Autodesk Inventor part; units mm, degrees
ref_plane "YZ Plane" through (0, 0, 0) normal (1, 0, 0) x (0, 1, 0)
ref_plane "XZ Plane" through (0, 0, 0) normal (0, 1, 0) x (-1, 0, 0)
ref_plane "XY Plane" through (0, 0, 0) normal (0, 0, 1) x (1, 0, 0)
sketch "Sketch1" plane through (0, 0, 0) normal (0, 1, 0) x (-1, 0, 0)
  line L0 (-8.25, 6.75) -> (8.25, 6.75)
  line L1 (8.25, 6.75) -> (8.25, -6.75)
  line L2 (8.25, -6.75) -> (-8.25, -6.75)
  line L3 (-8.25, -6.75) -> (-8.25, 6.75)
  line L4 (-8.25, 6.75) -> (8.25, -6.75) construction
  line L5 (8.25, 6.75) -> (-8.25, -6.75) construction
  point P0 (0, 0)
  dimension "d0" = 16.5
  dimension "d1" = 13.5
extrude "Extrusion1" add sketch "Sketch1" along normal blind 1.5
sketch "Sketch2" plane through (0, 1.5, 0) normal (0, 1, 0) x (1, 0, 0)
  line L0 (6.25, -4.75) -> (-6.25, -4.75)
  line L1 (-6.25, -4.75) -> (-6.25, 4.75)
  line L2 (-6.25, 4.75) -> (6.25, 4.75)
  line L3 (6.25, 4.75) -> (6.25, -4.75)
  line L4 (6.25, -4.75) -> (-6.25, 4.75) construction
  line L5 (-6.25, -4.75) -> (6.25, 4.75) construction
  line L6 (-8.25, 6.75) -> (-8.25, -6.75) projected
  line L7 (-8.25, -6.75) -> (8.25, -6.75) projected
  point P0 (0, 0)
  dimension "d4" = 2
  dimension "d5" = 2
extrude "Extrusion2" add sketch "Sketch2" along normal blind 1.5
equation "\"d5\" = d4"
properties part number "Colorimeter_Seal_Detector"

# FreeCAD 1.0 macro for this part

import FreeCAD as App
import Part
import Sketcher

V = App.Vector
Q = App.Units.Quantity


def add_polygon(sketch, points):
    """Adds a closed chain of lines whose ends are joined by coincident constraints."""
    first, n = sketch.GeometryCount, len(points)
    for a, b in zip(points, points[1:] + points[:1]):
        sketch.addGeometry(Part.LineSegment(App.Vector(*a, 0), App.Vector(*b, 0)), False)
    for i in range(n):
        sketch.addConstraint(Sketcher.Constraint("Coincident", first + i, 2, first + (i + 1) % n, 1))

doc = App.newDocument("Part")
body = doc.addObject("PartDesign::Body", "Body")

sketch1 = body.newObject("Sketcher::SketchObject", "Sketch")
sketch1.AttachmentSupport = (doc.getObject("XZ_Plane"), [""])
sketch1.MapMode = "FlatFace"
add_polygon(sketch1, [(-8, 7), (8, 7), (8, -7), (-8, -7)])
sketch1.addConstraint([
    Sketcher.Constraint("Horizontal", 0),
    Sketcher.Constraint("Vertical", 1),
    Sketcher.Constraint("Horizontal", 2),
    Sketcher.Constraint("Vertical", 3),
    Sketcher.Constraint("Symmetric", 0, 2, 2, 2, -1, 1),
    Sketcher.Constraint("DistanceX", 0, 1, 0, 2, Q("16.5 mm")),
    Sketcher.Constraint("DistanceY", 1, 2, 1, 1, Q("13.5 mm")),
])
pad1 = body.newObject("PartDesign::Pad", "Pad")
pad1.Profile = sketch1
pad1.Length = 1.5
pad1.Reversed = True

sketch2 = body.newObject("Sketcher::SketchObject", "Sketch001")
sketch2.AttachmentSupport = (doc.getObject("XZ_Plane"), [""])
sketch2.MapMode = "FlatFace"
sketch2.AttachmentOffset = App.Placement(V(0, 0, -1.5), App.Rotation())
add_polygon(sketch2, [(-6, 5), (6, 5), (6, -5), (-6, -5)])
sketch2.addConstraint([
    Sketcher.Constraint("Horizontal", 0),
    Sketcher.Constraint("Vertical", 1),
    Sketcher.Constraint("Horizontal", 2),
    Sketcher.Constraint("Vertical", 3),
    Sketcher.Constraint("Symmetric", 0, 2, 2, 2, -1, 1),
    Sketcher.Constraint("DistanceX", 0, 1, 0, 2, Q("12.5 mm")),
    Sketcher.Constraint("DistanceY", 1, 2, 1, 1, Q("9.5 mm")),
])
pad2 = body.newObject("PartDesign::Pad", "Pad001")
pad2.Profile = sketch2
pad2.Length = 1.5
pad2.Reversed = True

doc.recompute()
